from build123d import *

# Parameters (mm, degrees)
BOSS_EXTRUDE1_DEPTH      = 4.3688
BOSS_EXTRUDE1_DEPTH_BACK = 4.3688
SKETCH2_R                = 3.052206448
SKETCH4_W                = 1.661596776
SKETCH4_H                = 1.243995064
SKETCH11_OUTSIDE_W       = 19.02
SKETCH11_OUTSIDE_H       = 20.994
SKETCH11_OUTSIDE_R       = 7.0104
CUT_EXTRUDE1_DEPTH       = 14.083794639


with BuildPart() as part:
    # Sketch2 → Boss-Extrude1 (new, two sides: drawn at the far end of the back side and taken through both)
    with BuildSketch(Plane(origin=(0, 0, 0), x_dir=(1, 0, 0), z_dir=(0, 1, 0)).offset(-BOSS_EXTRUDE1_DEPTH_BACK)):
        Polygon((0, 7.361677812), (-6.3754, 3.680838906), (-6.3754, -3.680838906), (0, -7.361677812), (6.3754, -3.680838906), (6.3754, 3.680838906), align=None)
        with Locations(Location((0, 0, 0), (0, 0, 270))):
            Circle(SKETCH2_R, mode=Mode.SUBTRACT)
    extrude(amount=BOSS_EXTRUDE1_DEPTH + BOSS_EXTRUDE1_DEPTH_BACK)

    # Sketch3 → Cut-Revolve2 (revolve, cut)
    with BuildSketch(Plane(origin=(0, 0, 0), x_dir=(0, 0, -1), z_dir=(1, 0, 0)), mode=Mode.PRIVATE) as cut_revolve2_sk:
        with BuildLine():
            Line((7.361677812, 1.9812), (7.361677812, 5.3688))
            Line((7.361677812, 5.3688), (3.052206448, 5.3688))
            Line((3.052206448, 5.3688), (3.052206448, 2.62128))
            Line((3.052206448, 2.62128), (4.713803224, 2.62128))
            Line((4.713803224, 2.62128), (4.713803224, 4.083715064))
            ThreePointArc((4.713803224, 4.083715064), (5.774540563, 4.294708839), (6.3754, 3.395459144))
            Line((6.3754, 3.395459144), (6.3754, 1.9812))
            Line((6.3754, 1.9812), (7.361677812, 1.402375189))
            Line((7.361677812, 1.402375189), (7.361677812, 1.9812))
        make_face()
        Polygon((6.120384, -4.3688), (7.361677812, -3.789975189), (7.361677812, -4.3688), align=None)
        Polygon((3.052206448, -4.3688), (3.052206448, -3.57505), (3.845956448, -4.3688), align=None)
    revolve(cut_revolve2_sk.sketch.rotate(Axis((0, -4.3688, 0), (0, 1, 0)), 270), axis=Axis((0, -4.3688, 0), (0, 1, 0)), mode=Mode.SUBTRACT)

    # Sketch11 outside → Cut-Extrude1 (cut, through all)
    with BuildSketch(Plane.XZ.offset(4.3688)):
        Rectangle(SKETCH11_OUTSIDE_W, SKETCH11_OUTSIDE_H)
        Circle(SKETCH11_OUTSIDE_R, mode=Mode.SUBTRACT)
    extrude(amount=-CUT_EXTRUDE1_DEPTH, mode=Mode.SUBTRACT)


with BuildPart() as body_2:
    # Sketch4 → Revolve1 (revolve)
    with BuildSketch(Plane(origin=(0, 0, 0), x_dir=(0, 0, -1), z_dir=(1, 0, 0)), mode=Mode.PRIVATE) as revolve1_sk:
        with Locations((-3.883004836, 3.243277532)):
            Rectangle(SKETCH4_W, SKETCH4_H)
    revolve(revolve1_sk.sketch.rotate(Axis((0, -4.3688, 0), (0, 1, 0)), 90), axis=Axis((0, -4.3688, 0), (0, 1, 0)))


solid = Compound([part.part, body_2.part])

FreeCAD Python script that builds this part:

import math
import FreeCAD as App
import Part
import Sketcher
from FreeCAD import Vector
Q = App.Units.Quantity

doc = App.newDocument("Part")
body = doc.addObject("PartDesign::Body", "Body")

# Sketch on XZ plane
sketch1 = doc.addObject("Sketcher::SketchObject", "Sketch")
body.addObject(sketch1)
sketch1.AttachmentSupport = (doc.XZ_Plane, [""])
sketch1.MapMode = "FlatFace"
sketch1.addGeometry([
    Part.LineSegment(Vector(0, -7.4, 0), Vector(-6.4, -3.7, 0)),  # 0
    Part.LineSegment(Vector(-6.4, -3.7, 0), Vector(-6.4, 3.7, 0)),  # 1
    Part.LineSegment(Vector(-6.4, 3.7, 0), Vector(0, 7.4, 0)),  # 2
    Part.LineSegment(Vector(0, 7.4, 0), Vector(6.4, 3.7, 0)),  # 3
    Part.LineSegment(Vector(6.4, 3.7, 0), Vector(6.4, -3.7, 0)),  # 4
    Part.LineSegment(Vector(6.4, -3.7, 0), Vector(0, -7.4, 0)),  # 5
    Part.Circle(Vector(0, 0, 0), Vector(0, 0, 1), 3.1),  # 6
], False)
sketch1.addConstraint([
    Sketcher.Constraint("Coincident", 0, 2, 1, 1),
    Sketcher.Constraint("Coincident", 1, 2, 2, 1),
    Sketcher.Constraint("Coincident", 2, 2, 3, 1),
    Sketcher.Constraint("Coincident", 3, 2, 4, 1),
    Sketcher.Constraint("Coincident", 4, 2, 5, 1),
    Sketcher.Constraint("Coincident", 5, 2, 0, 1),
    Sketcher.Constraint("Vertical", 1),
    Sketcher.Constraint("Vertical", 4),
    Sketcher.Constraint("Coincident", 6, 3, -1, 1),
    Sketcher.Constraint("Symmetric", 0, 2, 3, 2, -1, 1),
    Sketcher.Constraint("Symmetric", 2, 2, 5, 2, -1, 1),
    Sketcher.Constraint("PointOnObject", 2, 2, -2),
    Sketcher.Constraint("Parallel", 2, 5),
    Sketcher.Constraint("Horizontal", 1, 2, 3, 2),
    Sketcher.Constraint("Angle", 0, Q("150 deg")),
    Sketcher.Constraint("DistanceX", 0, 2, -1, 1, Q("0.251 in")),
    Sketcher.Constraint("Diameter", 6, Q("6.104413 mm")),
    Sketcher.Constraint("DistanceY", 1, 1, 1, 2, Q("7.361678 mm")),
])
pad1 = doc.addObject("PartDesign::Pad", "Pad")
body.addObject(pad1)
pad1.Profile = sketch1
pad1.Type = "TwoLengths"
pad1.Length = Q("0.172 in")
pad1.Length2 = Q("0.172 in")
pad1.Reversed = True

# Sketch on YZ plane
sketch2 = doc.addObject("Sketcher::SketchObject", "Sketch001")
body.addObject(sketch2)
sketch2.AttachmentSupport = (doc.YZ_Plane, [""])
sketch2.MapMode = "FlatFace"
sketch2.addGeometry([
    Part.LineSegment(Vector(5.4, -7.4, 0), Vector(5.4, -3.1, 0)),  # 0
    Part.LineSegment(Vector(5.4, -3.1, 0), Vector(2.6, -3.1, 0)),  # 1
    Part.LineSegment(Vector(2.6, -3.1, 0), Vector(2.6, -4.7, 0)),  # 2
    Part.LineSegment(Vector(2.6, -4.7, 0), Vector(4.1, -4.7, 0)),  # 3
    Part.ArcOfCircle(Part.Circle(Vector(3.4, -5.4, 0), Vector(0, 0, 1), 1), math.radians(-90), math.radians(45)),  # 4
    Part.LineSegment(Vector(3.4, -6.4, 0), Vector(2, -6.4, 0)),  # 5
    Part.LineSegment(Vector(2, -6.4, 0), Vector(1.4, -7.4, 0)),  # 6
    Part.LineSegment(Vector(1.4, -7.4, 0), Vector(5.4, -7.4, 0)),  # 7
    Part.LineSegment(Vector(-3.8, -7.4, 0), Vector(-4.4, -6.1, 0)),  # 8
    Part.LineSegment(Vector(-4.4, -6.1, 0), Vector(-4.4, -7.4, 0)),  # 9
    Part.LineSegment(Vector(-4.4, -7.4, 0), Vector(-3.8, -7.4, 0)),  # 10
    Part.LineSegment(Vector(-3.6, -3.1, 0), Vector(-4.4, -3.1, 0)),  # 11
    Part.LineSegment(Vector(-4.4, -3.1, 0), Vector(-4.4, -3.8, 0)),  # 12
    Part.LineSegment(Vector(-4.4, -3.8, 0), Vector(-3.6, -3.1, 0)),  # 13
], False)
sketch2.addConstraint([
    Sketcher.Constraint("Coincident", 0, 2, 1, 1),
    Sketcher.Constraint("Coincident", 1, 2, 2, 1),
    Sketcher.Constraint("Coincident", 2, 2, 3, 1),
    Sketcher.Constraint("Coincident", 3, 2, 4, 2),
    Sketcher.Constraint("Tangent", 4, 1, 5, 1),
    Sketcher.Constraint("Coincident", 5, 2, 6, 1),
    Sketcher.Constraint("Coincident", 6, 2, 7, 1),
    Sketcher.Constraint("Coincident", 7, 2, 0, 1),
    Sketcher.Constraint("Coincident", 8, 2, 9, 1),
    Sketcher.Constraint("Coincident", 9, 2, 10, 1),
    Sketcher.Constraint("Coincident", 10, 2, 8, 1),
    Sketcher.Constraint("Coincident", 11, 2, 12, 1),
    Sketcher.Constraint("Coincident", 12, 2, 13, 1),
    Sketcher.Constraint("Coincident", 13, 2, 11, 1),
    Sketcher.Constraint("Vertical", 0),
    Sketcher.Constraint("Horizontal", 1),
    Sketcher.Constraint("Vertical", 2),
    Sketcher.Constraint("Horizontal", 3),
    Sketcher.Constraint("Horizontal", 5),
    Sketcher.Constraint("Horizontal", 7),
    Sketcher.Constraint("Vertical", 9),
    Sketcher.Constraint("Horizontal", 10),
    Sketcher.Constraint("Horizontal", 11),
    Sketcher.Constraint("Vertical", 12),
    Sketcher.Constraint("Horizontal", 7, 2, 9, 2),
    Sketcher.Constraint("Horizontal", 1, 2, 11, 2),
    Sketcher.Constraint("Vertical", 9, 2, 11, 2),
    Sketcher.Constraint("Equal", 11, 12),
    Sketcher.Constraint("Angle", 8, Q("115 deg")),
    Sketcher.Constraint("DistanceX", 11, 2, 11, 1, Q("0.03125 in")),
    Sketcher.Constraint("DistanceX", 8, 2, 5, 2, Q("0.25 in")),
    Sketcher.Constraint("DistanceY", 4, 1, -1, 1, Q("0.251 in")),
    Sketcher.Constraint("DistanceX", -1, 1, 5, 2, Q("0.078 in")),
    Sketcher.Constraint("Radius", 4, Q("0.973341 mm")),
    Sketcher.Constraint("DistanceX", -1, 1, 1, 2, Q("0.1032 in")),
    Sketcher.Constraint("DistanceX", 1, 2, 1, 1, Q("2.74752 mm")),
    Sketcher.Constraint("DistanceX", 5, 2, 5, 1, Q("1.414259 mm")),
    Sketcher.Constraint("DistanceY", 0, 1, 0, 2, Q("4.309471 mm")),
    Sketcher.Constraint("DistanceX", 3, 1, 3, 2, Q("1.462435 mm")),
    Sketcher.Constraint("DistanceX", 7, 1, 7, 2, Q("3.966425 mm")),
    Sketcher.Constraint("DistanceX", 10, 1, 10, 2, Q("0.578825 mm")),
    Sketcher.Constraint("DistanceY", 2, 2, 2, 1, Q("1.661597 mm")),
])
groove = doc.addObject("PartDesign::Groove", "Groove")
body.addObject(groove)
groove.Profile = sketch2
groove.ReferenceAxis = (sketch2, ["H_Axis"])
groove.Angle = 360

# Sketch on XZ plane
sketch3 = doc.addObject("Sketcher::SketchObject", "Sketch002")
body.addObject(sketch3)
sketch3.AttachmentSupport = (doc.XZ_Plane, [""])
sketch3.MapMode = "FlatFace"
sketch3.AttachmentOffset = App.Placement(Vector(0, 0, 0.172 * 25.4), App.Rotation())
sketch3.addGeometry([
    Part.LineSegment(Vector(-10, 10, 0), Vector(-10, -10, 0)),  # 0
    Part.LineSegment(Vector(-10, -10, 0), Vector(10, -10, 0)),  # 1
    Part.LineSegment(Vector(10, -10, 0), Vector(10, 10, 0)),  # 2
    Part.LineSegment(Vector(10, 10, 0), Vector(-10, 10, 0)),  # 3
    Part.Circle(Vector(0, 0, 0), Vector(0, 0, 1), 7),  # 4
], False)
sketch3.addConstraint([
    Sketcher.Constraint("Coincident", 0, 2, 1, 1),
    Sketcher.Constraint("Coincident", 1, 2, 2, 1),
    Sketcher.Constraint("Coincident", 2, 2, 3, 1),
    Sketcher.Constraint("Coincident", 3, 2, 0, 1),
    Sketcher.Constraint("Vertical", 0),
    Sketcher.Constraint("Horizontal", 1),
    Sketcher.Constraint("Vertical", 2),
    Sketcher.Constraint("Horizontal", 3),
    Sketcher.Constraint("Coincident", 4, 3, -1, 1),
    Sketcher.Constraint("Symmetric", 0, 2, 2, 2, -1, 1),
    Sketcher.Constraint("Diameter", 4, Q("0.552 in")),
    Sketcher.Constraint("DistanceX", 1, 1, 1, 2, Q("19.02 mm")),
    Sketcher.Constraint("DistanceY", 0, 2, 0, 1, Q("20.994 mm")),
])
pocket1 = doc.addObject("PartDesign::Pocket", "Pocket")
body.addObject(pocket1)
pocket1.Profile = sketch3
pocket1.Type = "ThroughAll"
body2 = doc.addObject("PartDesign::Body", "Body001")

# Sketch on YZ plane
sketch4 = doc.addObject("Sketcher::SketchObject", "Sketch003")
body2.addObject(sketch4)
sketch4.AttachmentSupport = (doc.getObject("YZ_Plane001"), [""])
sketch4.MapMode = "FlatFace"
sketch4.addGeometry([
    Part.LineSegment(Vector(3.9, 4.7, 0), Vector(2.6, 4.7, 0)),
    Part.LineSegment(Vector(2.6, 4.7, 0), Vector(2.6, 3.1, 0)),
    Part.LineSegment(Vector(2.6, 3.1, 0), Vector(3.9, 3.1, 0)),
    Part.LineSegment(Vector(3.9, 3.1, 0), Vector(3.9, 4.7, 0)),
], False)
sketch4.addConstraint([
    Sketcher.Constraint("Coincident", 0, 2, 1, 1),
    Sketcher.Constraint("Coincident", 1, 2, 2, 1),
    Sketcher.Constraint("Coincident", 2, 2, 3, 1),
    Sketcher.Constraint("Coincident", 3, 2, 0, 1),
    Sketcher.Constraint("Horizontal", 0),
    Sketcher.Constraint("Vertical", 1),
    Sketcher.Constraint("Horizontal", 2),
    Sketcher.Constraint("Vertical", 3),
    Sketcher.Constraint("DistanceX", -1, 1, 0, 2, Q("0.1032 in")),
    Sketcher.Constraint("DistanceX", 0, 2, 0, 1, Q("1.243995 mm")),
    Sketcher.Constraint("DistanceY", 1, 2, 1, 1, Q("1.661597 mm")),
    Sketcher.Constraint("DistanceY", -1, 1, 0, 2, Q("4.713803 mm")),
])
revolution = doc.addObject("PartDesign::Revolution", "Revolution")
body2.addObject(revolution)
revolution.Profile = sketch4
revolution.ReferenceAxis = (sketch4, ["H_Axis"])
revolution.Angle = 360

doc.recompute()
